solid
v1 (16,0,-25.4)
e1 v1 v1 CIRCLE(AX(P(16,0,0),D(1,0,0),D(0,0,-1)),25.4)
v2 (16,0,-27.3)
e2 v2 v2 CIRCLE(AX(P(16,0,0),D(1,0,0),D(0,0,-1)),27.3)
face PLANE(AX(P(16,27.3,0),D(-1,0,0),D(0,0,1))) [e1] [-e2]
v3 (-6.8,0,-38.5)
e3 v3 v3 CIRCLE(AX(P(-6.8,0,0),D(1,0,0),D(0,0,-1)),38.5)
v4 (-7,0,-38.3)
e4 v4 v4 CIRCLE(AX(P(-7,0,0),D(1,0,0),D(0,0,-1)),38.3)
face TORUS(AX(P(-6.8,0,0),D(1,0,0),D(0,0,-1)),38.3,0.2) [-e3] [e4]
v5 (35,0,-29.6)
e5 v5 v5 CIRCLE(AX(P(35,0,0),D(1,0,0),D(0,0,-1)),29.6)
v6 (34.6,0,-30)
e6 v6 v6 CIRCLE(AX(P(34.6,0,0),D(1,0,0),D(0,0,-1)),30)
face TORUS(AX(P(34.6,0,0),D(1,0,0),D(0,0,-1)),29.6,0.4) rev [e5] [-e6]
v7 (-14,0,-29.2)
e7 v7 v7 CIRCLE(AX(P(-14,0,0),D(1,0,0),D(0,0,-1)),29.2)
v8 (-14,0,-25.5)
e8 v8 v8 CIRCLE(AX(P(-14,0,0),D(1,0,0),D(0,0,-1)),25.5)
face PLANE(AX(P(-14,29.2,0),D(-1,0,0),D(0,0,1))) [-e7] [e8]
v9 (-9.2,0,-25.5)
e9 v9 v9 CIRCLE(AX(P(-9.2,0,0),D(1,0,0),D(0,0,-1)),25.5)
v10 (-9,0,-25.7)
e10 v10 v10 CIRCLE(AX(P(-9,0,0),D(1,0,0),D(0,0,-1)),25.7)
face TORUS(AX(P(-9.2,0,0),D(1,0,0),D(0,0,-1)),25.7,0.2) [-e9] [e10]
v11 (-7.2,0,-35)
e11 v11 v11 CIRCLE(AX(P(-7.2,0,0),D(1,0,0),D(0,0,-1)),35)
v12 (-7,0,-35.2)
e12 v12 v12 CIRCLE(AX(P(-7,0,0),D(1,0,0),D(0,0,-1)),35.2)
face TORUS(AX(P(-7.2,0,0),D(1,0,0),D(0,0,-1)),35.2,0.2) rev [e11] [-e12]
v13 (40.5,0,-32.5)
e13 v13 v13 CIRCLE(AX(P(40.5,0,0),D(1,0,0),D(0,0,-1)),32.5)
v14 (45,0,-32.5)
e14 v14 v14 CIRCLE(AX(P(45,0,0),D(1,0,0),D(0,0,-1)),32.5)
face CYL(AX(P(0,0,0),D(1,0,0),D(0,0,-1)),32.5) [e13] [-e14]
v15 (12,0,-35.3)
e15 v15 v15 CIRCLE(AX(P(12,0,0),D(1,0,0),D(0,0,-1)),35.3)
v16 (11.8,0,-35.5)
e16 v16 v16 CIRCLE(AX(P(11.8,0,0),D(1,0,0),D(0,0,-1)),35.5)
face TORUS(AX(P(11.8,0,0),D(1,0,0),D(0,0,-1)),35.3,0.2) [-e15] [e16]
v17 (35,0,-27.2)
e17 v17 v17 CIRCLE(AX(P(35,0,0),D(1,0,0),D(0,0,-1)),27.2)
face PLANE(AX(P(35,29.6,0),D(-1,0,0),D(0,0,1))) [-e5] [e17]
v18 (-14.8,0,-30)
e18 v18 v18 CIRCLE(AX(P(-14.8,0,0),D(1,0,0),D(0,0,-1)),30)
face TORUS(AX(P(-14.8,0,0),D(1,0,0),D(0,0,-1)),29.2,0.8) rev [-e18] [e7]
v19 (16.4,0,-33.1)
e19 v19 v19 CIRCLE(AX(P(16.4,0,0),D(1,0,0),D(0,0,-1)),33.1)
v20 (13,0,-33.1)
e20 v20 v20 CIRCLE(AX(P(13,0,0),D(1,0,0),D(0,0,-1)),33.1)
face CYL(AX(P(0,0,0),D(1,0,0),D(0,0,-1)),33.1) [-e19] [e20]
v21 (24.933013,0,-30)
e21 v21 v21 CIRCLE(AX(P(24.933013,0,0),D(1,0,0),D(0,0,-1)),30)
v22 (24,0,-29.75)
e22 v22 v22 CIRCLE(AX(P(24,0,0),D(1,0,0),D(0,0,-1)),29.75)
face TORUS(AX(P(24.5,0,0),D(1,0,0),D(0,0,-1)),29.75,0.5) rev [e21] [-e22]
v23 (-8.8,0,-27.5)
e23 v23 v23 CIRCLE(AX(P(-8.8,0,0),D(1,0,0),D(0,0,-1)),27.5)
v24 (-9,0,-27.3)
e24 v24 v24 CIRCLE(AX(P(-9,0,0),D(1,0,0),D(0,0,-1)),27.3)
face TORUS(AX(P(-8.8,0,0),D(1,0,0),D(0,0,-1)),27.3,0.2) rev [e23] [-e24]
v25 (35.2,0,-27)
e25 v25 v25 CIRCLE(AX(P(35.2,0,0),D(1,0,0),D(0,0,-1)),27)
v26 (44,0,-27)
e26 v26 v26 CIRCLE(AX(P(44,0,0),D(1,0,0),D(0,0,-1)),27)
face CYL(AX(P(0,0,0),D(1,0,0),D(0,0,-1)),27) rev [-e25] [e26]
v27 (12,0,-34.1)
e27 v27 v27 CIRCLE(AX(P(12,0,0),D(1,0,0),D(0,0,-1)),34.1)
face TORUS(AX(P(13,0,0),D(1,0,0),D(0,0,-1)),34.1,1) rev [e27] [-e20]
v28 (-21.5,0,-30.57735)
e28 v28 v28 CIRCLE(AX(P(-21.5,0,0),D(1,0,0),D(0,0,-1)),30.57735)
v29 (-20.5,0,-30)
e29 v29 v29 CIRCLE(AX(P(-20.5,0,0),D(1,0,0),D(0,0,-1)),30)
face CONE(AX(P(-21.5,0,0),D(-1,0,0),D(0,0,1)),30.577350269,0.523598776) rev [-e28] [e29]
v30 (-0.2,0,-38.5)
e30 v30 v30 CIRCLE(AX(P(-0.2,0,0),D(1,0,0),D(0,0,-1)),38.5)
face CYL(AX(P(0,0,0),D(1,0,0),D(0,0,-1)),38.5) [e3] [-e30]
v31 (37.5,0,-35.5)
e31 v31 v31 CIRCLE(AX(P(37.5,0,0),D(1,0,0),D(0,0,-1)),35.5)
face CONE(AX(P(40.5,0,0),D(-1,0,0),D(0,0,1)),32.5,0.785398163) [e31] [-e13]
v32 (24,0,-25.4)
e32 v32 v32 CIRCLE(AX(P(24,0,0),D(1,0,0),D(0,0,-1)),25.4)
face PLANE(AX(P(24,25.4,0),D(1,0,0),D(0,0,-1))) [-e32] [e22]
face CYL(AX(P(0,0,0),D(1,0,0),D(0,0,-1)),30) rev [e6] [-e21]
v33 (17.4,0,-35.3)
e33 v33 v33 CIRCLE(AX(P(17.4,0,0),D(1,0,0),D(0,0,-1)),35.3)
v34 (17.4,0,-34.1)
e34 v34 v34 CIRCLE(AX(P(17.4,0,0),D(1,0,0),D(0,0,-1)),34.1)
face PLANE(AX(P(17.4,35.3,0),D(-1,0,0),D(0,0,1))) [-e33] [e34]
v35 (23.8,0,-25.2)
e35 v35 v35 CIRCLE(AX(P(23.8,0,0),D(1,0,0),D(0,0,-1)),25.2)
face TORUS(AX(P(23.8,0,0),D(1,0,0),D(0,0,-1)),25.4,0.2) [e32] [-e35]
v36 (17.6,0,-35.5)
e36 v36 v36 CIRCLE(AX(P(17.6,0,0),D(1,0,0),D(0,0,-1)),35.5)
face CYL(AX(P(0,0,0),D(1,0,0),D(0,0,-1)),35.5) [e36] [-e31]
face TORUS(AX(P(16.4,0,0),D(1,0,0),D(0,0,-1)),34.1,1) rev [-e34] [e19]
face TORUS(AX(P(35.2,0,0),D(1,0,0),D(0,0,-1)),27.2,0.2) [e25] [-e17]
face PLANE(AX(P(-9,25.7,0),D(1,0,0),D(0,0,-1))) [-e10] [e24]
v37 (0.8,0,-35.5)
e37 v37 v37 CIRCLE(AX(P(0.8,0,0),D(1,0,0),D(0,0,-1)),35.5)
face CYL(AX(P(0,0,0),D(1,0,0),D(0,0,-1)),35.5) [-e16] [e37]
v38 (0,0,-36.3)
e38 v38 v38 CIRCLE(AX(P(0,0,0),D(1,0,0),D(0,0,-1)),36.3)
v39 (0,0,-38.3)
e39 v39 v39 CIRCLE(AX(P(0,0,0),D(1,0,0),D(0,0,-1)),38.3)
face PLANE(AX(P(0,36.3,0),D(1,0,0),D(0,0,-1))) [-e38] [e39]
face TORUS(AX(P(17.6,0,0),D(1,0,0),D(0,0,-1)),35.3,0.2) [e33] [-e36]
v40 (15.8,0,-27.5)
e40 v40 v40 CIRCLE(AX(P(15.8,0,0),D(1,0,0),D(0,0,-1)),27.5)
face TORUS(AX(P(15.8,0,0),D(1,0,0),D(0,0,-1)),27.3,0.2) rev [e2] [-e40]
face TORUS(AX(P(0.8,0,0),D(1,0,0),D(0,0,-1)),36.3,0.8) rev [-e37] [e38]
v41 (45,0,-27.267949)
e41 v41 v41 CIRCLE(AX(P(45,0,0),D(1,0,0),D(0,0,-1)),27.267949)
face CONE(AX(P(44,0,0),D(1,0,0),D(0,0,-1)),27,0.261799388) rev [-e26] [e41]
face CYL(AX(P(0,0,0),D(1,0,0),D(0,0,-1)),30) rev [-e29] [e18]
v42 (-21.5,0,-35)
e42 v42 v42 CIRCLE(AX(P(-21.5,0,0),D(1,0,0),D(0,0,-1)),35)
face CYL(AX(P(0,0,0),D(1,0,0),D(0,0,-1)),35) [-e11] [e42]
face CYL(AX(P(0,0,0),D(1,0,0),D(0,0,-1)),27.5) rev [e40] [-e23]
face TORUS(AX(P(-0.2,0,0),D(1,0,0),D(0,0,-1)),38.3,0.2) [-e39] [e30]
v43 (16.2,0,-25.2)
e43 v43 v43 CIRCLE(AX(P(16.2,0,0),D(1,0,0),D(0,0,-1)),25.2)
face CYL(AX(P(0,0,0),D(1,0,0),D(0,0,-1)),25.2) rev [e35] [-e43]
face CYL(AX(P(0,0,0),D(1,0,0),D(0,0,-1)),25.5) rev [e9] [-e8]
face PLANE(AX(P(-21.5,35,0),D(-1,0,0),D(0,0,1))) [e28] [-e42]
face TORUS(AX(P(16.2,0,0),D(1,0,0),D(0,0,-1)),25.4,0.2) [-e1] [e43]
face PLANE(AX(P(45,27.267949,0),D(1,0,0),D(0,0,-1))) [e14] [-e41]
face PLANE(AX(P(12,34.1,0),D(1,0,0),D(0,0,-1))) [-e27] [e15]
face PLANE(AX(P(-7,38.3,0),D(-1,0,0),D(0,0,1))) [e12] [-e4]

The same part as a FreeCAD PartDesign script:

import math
import FreeCAD as App
import Part
import Sketcher
Q = App.Units.Quantity

doc = App.newDocument("Part")
body = doc.addObject("PartDesign::Body", "Body")

# Sketch on XY plane
sketch1 = body.newObject("Sketcher::SketchObject", "Sketch")
sketch1.AttachmentSupport = (doc.getObject("XY_Plane"), [""])
sketch1.MapMode = "FlatFace"
sketch1.addGeometry([
    Part.LineSegment(App.Vector(0, 36.3, 0), App.Vector(0, 38.3, 0)),  # 0
    Part.ArcOfCircle(Part.Circle(App.Vector(-0.2, 38.3, 0), App.Vector(0, 0, 1), 0.2), math.radians(0), math.radians(90)),  # 1
    Part.LineSegment(App.Vector(-0.2, 38.5, 0), App.Vector(-6.8, 38.5, 0)),  # 2
    Part.ArcOfCircle(Part.Circle(App.Vector(-6.8, 38.3, 0), App.Vector(0, 0, 1), 0.2), math.radians(90), math.radians(180)),  # 3
    Part.LineSegment(App.Vector(-7, 38.3, 0), App.Vector(-7, 35.2, 0)),  # 4
    Part.ArcOfCircle(Part.Circle(App.Vector(-7.2, 35.2, 0), App.Vector(0, 0, 1), 0.2), math.radians(-90), math.radians(0)),  # 5
    Part.LineSegment(App.Vector(-7.2, 35, 0), App.Vector(-21.5, 35, 0)),  # 6
    Part.LineSegment(App.Vector(-21.5, 35, 0), App.Vector(-21.5, 30.57735, 0)),  # 7
    Part.LineSegment(App.Vector(-21.5, 30.57735, 0), App.Vector(-20.5, 30, 0)),  # 8
    Part.LineSegment(App.Vector(-20.5, 30, 0), App.Vector(-14.8, 30, 0)),  # 9
    Part.ArcOfCircle(Part.Circle(App.Vector(-14.8, 29.2, 0), App.Vector(0, 0, 1), 0.8), math.radians(0), math.radians(90)),  # 10
    Part.LineSegment(App.Vector(-14, 29.2, 0), App.Vector(-14, 25.5, 0)),  # 11
    Part.LineSegment(App.Vector(-14, 25.5, 0), App.Vector(-9.2, 25.5, 0)),  # 12
    Part.ArcOfCircle(Part.Circle(App.Vector(-9.2, 25.7, 0), App.Vector(0, 0, 1), 0.2), math.radians(-90), math.radians(0)),  # 13
    Part.LineSegment(App.Vector(-9, 25.7, 0), App.Vector(-9, 27.3, 0)),  # 14
    Part.ArcOfCircle(Part.Circle(App.Vector(-8.8, 27.3, 0), App.Vector(0, 0, 1), 0.2), math.radians(90), math.radians(180)),  # 15
    Part.LineSegment(App.Vector(-8.8, 27.5, 0), App.Vector(15.8, 27.5, 0)),  # 16
    Part.ArcOfCircle(Part.Circle(App.Vector(15.8, 27.3, 0), App.Vector(0, 0, 1), 0.2), math.radians(0), math.radians(90)),  # 17
    Part.LineSegment(App.Vector(16, 27.3, 0), App.Vector(16, 25.4, 0)),  # 18
    Part.ArcOfCircle(Part.Circle(App.Vector(16.2, 25.4, 0), App.Vector(0, 0, 1), 0.2), math.radians(-180), math.radians(-90)),  # 19
    Part.LineSegment(App.Vector(16.2, 25.2, 0), App.Vector(23.8, 25.2, 0)),  # 20
    Part.ArcOfCircle(Part.Circle(App.Vector(23.8, 25.4, 0), App.Vector(0, 0, 1), 0.2), math.radians(-90), math.radians(0)),  # 21
    Part.LineSegment(App.Vector(24, 25.4, 0), App.Vector(24, 29.75, 0)),  # 22
    Part.ArcOfCircle(Part.Circle(App.Vector(24.5, 29.75, 0), App.Vector(0, 0, 1), 0.5), math.radians(30), math.radians(180)),  # 23
    Part.LineSegment(App.Vector(24.933013, 30, 0), App.Vector(34.6, 30, 0)),  # 24
    Part.ArcOfCircle(Part.Circle(App.Vector(34.6, 29.6, 0), App.Vector(0, 0, 1), 0.4), math.radians(0), math.radians(90)),  # 25
    Part.LineSegment(App.Vector(35, 29.6, 0), App.Vector(35, 27.2, 0)),  # 26
    Part.ArcOfCircle(Part.Circle(App.Vector(35.2, 27.2, 0), App.Vector(0, 0, 1), 0.2), math.radians(-180), math.radians(-90)),  # 27
    Part.LineSegment(App.Vector(35.2, 27, 0), App.Vector(44, 27, 0)),  # 28
    Part.LineSegment(App.Vector(44, 27, 0), App.Vector(45, 27.267949, 0)),  # 29
    Part.LineSegment(App.Vector(45, 27.267949, 0), App.Vector(45, 32.5, 0)),  # 30
    Part.LineSegment(App.Vector(45, 32.5, 0), App.Vector(40.5, 32.5, 0)),  # 31
    Part.LineSegment(App.Vector(40.5, 32.5, 0), App.Vector(37.5, 35.5, 0)),  # 32
    Part.LineSegment(App.Vector(37.5, 35.5, 0), App.Vector(17.6, 35.5, 0)),  # 33
    Part.ArcOfCircle(Part.Circle(App.Vector(17.6, 35.3, 0), App.Vector(0, 0, 1), 0.2), math.radians(90), math.radians(180)),  # 34
    Part.LineSegment(App.Vector(17.4, 35.3, 0), App.Vector(17.4, 34.1, 0)),  # 35
    Part.ArcOfCircle(Part.Circle(App.Vector(16.4, 34.1, 0), App.Vector(0, 0, 1), 1), math.radians(-90), math.radians(0)),  # 36
    Part.LineSegment(App.Vector(16.4, 33.1, 0), App.Vector(13, 33.1, 0)),  # 37
    Part.ArcOfCircle(Part.Circle(App.Vector(13, 34.1, 0), App.Vector(0, 0, 1), 1), math.radians(-180), math.radians(-90)),  # 38
    Part.LineSegment(App.Vector(12, 34.1, 0), App.Vector(12, 35.3, 0)),  # 39
    Part.ArcOfCircle(Part.Circle(App.Vector(11.8, 35.3, 0), App.Vector(0, 0, 1), 0.2), math.radians(0), math.radians(90)),  # 40
    Part.LineSegment(App.Vector(11.8, 35.5, 0), App.Vector(0.8, 35.5, 0)),  # 41
    Part.ArcOfCircle(Part.Circle(App.Vector(0.8, 36.3, 0), App.Vector(0, 0, 1), 0.8), math.radians(180), math.radians(270)),  # 42
], False)
sketch1.addConstraint([
    Sketcher.Constraint("Tangent", 0, 2, 1, 1),
    Sketcher.Constraint("Tangent", 1, 2, 2, 1),
    Sketcher.Constraint("Tangent", 2, 2, 3, 1),
    Sketcher.Constraint("Tangent", 3, 2, 4, 1),
    Sketcher.Constraint("Tangent", 4, 2, 5, 2),
    Sketcher.Constraint("Tangent", 5, 1, 6, 1),
    Sketcher.Constraint("Coincident", 6, 2, 7, 1),
    Sketcher.Constraint("Coincident", 7, 2, 8, 1),
    Sketcher.Constraint("Coincident", 8, 2, 9, 1),
    Sketcher.Constraint("Tangent", 9, 2, 10, 2),
    Sketcher.Constraint("Tangent", 10, 1, 11, 1),
    Sketcher.Constraint("Coincident", 11, 2, 12, 1),
    Sketcher.Constraint("Tangent", 12, 2, 13, 1),
    Sketcher.Constraint("Tangent", 13, 2, 14, 1),
    Sketcher.Constraint("Tangent", 14, 2, 15, 2),
    Sketcher.Constraint("Tangent", 15, 1, 16, 1),
    Sketcher.Constraint("Tangent", 16, 2, 17, 2),
    Sketcher.Constraint("Tangent", 17, 1, 18, 1),
    Sketcher.Constraint("Tangent", 18, 2, 19, 1),
    Sketcher.Constraint("Tangent", 19, 2, 20, 1),
    Sketcher.Constraint("Tangent", 20, 2, 21, 1),
    Sketcher.Constraint("Tangent", 21, 2, 22, 1),
    Sketcher.Constraint("Tangent", 22, 2, 23, 2),
    Sketcher.Constraint("Coincident", 23, 1, 24, 1),
    Sketcher.Constraint("Tangent", 24, 2, 25, 2),
    Sketcher.Constraint("Tangent", 25, 1, 26, 1),
    Sketcher.Constraint("Tangent", 26, 2, 27, 1),
    Sketcher.Constraint("Tangent", 27, 2, 28, 1),
    Sketcher.Constraint("Coincident", 28, 2, 29, 1),
    Sketcher.Constraint("Coincident", 29, 2, 30, 1),
    Sketcher.Constraint("Coincident", 30, 2, 31, 1),
    Sketcher.Constraint("Coincident", 31, 2, 32, 1),
    Sketcher.Constraint("Coincident", 32, 2, 33, 1),
    Sketcher.Constraint("Tangent", 33, 2, 34, 1),
    Sketcher.Constraint("Tangent", 34, 2, 35, 1),
    Sketcher.Constraint("Tangent", 35, 2, 36, 2),
    Sketcher.Constraint("Tangent", 36, 1, 37, 1),
    Sketcher.Constraint("Tangent", 37, 2, 38, 2),
    Sketcher.Constraint("Tangent", 38, 1, 39, 1),
    Sketcher.Constraint("Tangent", 39, 2, 40, 1),
    Sketcher.Constraint("Tangent", 40, 2, 41, 1),
    Sketcher.Constraint("Tangent", 41, 2, 42, 2),
    Sketcher.Constraint("Tangent", 42, 1, 0, 1),
    Sketcher.Constraint("Vertical", 0),
    Sketcher.Constraint("Horizontal", 2),
    Sketcher.Constraint("Vertical", 4),
    Sketcher.Constraint("Horizontal", 6),
    Sketcher.Constraint("Vertical", 7),
    Sketcher.Constraint("Horizontal", 9),
    Sketcher.Constraint("Vertical", 11),
    Sketcher.Constraint("Horizontal", 12),
    Sketcher.Constraint("Vertical", 14),
    Sketcher.Constraint("Horizontal", 16),
    Sketcher.Constraint("Vertical", 18),
    Sketcher.Constraint("Horizontal", 20),
    Sketcher.Constraint("Vertical", 22),
    Sketcher.Constraint("Horizontal", 24),
    Sketcher.Constraint("Vertical", 26),
    Sketcher.Constraint("Horizontal", 28),
    Sketcher.Constraint("Vertical", 30),
    Sketcher.Constraint("Horizontal", 31),
    Sketcher.Constraint("Horizontal", 33),
    Sketcher.Constraint("Vertical", 35),
    Sketcher.Constraint("Horizontal", 37),
    Sketcher.Constraint("Vertical", 39),
    Sketcher.Constraint("Horizontal", 41),
    Sketcher.Constraint("Equal", 1, 3),
    Sketcher.Constraint("Equal", 3, 5),
    Sketcher.Constraint("Equal", 5, 13),
    Sketcher.Constraint("Equal", 13, 15),
    Sketcher.Constraint("Equal", 15, 17),
    Sketcher.Constraint("Equal", 17, 19),
    Sketcher.Constraint("Equal", 19, 21),
    Sketcher.Constraint("Equal", 21, 27),
    Sketcher.Constraint("Equal", 27, 34),
    Sketcher.Constraint("Equal", 36, 38),
    Sketcher.Constraint("Equal", 34, 40),
    Sketcher.Constraint("Equal", 10, 42),
    Sketcher.Constraint("PointOnObject", 0, 2, -2),
    Sketcher.Constraint("Horizontal", 34, 3, 40, 3),
    Sketcher.Constraint("Horizontal", 9, 2, 23, 1),
    Sketcher.Constraint("Radius", 36, 1.0),
    Sketcher.Constraint("Radius", 1, 0.2),
    Sketcher.Constraint("Radius", 10, 0.8),
    Sketcher.Constraint("Radius", 23, 0.5),
    Sketcher.Constraint("Radius", 25, 0.4),
    Sketcher.Constraint("DistanceX", 41, 2, 41, 1, 11.0),
    Sketcher.Constraint("DistanceY", 0, 1, 0, 2, 2.0),
    Sketcher.Constraint("Angle", 8, Q("-30 deg")),
    Sketcher.Constraint("Angle", 29, Q("15 deg")),
    Sketcher.Constraint("Angle", 32, Q("135 deg")),
    Sketcher.Constraint("DistanceX", 2, 2, 2, 1, 6.6),
    Sketcher.Constraint("DistanceX", 6, 2, 6, 1, 14.3),
    Sketcher.Constraint("DistanceX", 9, 1, 9, 2, 5.7),
    Sketcher.Constraint("DistanceX", 12, 1, 12, 2, 4.8),
    Sketcher.Constraint("DistanceX", 16, 1, 16, 2, 24.6),
    Sketcher.Constraint("DistanceX", 20, 1, 20, 2, 7.6),
    Sketcher.Constraint("DistanceX", 28, 1, 28, 2, 8.8),
    Sketcher.Constraint("DistanceX", 31, 2, 31, 1, 4.5),
    Sketcher.Constraint("DistanceX", 33, 2, 33, 1, 19.9),
    Sketcher.Constraint("DistanceX", 37, 2, 37, 1, 3.4),
    Sketcher.Constraint("DistanceY", 4, 2, 4, 1, 3.1),
    Sketcher.Constraint("DistanceY", 11, 2, 11, 1, 3.7),
    Sketcher.Constraint("DistanceY", 14, 1, 14, 2, 1.6),
    Sketcher.Constraint("DistanceY", 18, 2, 18, 1, 1.9),
    Sketcher.Constraint("DistanceY", 26, 2, 26, 1, 2.4),
    Sketcher.Constraint("DistanceY", 35, 2, 35, 1, 1.2),
    Sketcher.Constraint("DistanceY", -1, 1, 5, 1, 35.0),
    Sketcher.Constraint("DistanceY", -1, 1, 8, 2, 30.0),
    Sketcher.Constraint("DistanceX", 10, 1, -1, 1, 14.0),
    Sketcher.Constraint("DistanceX", -1, 1, 25, 1, 35.0),
    Sketcher.Constraint("DistanceX", -1, 1, 29, 2, 45.0),
    Sketcher.Constraint("DistanceY", 22, 1, 22, 2, 4.35),
])
revolution = body.newObject("PartDesign::Revolution", "Revolution")
revolution.Profile = sketch1
revolution.ReferenceAxis = (sketch1, ["H_Axis"])
revolution.Angle = 360

doc.recompute()
